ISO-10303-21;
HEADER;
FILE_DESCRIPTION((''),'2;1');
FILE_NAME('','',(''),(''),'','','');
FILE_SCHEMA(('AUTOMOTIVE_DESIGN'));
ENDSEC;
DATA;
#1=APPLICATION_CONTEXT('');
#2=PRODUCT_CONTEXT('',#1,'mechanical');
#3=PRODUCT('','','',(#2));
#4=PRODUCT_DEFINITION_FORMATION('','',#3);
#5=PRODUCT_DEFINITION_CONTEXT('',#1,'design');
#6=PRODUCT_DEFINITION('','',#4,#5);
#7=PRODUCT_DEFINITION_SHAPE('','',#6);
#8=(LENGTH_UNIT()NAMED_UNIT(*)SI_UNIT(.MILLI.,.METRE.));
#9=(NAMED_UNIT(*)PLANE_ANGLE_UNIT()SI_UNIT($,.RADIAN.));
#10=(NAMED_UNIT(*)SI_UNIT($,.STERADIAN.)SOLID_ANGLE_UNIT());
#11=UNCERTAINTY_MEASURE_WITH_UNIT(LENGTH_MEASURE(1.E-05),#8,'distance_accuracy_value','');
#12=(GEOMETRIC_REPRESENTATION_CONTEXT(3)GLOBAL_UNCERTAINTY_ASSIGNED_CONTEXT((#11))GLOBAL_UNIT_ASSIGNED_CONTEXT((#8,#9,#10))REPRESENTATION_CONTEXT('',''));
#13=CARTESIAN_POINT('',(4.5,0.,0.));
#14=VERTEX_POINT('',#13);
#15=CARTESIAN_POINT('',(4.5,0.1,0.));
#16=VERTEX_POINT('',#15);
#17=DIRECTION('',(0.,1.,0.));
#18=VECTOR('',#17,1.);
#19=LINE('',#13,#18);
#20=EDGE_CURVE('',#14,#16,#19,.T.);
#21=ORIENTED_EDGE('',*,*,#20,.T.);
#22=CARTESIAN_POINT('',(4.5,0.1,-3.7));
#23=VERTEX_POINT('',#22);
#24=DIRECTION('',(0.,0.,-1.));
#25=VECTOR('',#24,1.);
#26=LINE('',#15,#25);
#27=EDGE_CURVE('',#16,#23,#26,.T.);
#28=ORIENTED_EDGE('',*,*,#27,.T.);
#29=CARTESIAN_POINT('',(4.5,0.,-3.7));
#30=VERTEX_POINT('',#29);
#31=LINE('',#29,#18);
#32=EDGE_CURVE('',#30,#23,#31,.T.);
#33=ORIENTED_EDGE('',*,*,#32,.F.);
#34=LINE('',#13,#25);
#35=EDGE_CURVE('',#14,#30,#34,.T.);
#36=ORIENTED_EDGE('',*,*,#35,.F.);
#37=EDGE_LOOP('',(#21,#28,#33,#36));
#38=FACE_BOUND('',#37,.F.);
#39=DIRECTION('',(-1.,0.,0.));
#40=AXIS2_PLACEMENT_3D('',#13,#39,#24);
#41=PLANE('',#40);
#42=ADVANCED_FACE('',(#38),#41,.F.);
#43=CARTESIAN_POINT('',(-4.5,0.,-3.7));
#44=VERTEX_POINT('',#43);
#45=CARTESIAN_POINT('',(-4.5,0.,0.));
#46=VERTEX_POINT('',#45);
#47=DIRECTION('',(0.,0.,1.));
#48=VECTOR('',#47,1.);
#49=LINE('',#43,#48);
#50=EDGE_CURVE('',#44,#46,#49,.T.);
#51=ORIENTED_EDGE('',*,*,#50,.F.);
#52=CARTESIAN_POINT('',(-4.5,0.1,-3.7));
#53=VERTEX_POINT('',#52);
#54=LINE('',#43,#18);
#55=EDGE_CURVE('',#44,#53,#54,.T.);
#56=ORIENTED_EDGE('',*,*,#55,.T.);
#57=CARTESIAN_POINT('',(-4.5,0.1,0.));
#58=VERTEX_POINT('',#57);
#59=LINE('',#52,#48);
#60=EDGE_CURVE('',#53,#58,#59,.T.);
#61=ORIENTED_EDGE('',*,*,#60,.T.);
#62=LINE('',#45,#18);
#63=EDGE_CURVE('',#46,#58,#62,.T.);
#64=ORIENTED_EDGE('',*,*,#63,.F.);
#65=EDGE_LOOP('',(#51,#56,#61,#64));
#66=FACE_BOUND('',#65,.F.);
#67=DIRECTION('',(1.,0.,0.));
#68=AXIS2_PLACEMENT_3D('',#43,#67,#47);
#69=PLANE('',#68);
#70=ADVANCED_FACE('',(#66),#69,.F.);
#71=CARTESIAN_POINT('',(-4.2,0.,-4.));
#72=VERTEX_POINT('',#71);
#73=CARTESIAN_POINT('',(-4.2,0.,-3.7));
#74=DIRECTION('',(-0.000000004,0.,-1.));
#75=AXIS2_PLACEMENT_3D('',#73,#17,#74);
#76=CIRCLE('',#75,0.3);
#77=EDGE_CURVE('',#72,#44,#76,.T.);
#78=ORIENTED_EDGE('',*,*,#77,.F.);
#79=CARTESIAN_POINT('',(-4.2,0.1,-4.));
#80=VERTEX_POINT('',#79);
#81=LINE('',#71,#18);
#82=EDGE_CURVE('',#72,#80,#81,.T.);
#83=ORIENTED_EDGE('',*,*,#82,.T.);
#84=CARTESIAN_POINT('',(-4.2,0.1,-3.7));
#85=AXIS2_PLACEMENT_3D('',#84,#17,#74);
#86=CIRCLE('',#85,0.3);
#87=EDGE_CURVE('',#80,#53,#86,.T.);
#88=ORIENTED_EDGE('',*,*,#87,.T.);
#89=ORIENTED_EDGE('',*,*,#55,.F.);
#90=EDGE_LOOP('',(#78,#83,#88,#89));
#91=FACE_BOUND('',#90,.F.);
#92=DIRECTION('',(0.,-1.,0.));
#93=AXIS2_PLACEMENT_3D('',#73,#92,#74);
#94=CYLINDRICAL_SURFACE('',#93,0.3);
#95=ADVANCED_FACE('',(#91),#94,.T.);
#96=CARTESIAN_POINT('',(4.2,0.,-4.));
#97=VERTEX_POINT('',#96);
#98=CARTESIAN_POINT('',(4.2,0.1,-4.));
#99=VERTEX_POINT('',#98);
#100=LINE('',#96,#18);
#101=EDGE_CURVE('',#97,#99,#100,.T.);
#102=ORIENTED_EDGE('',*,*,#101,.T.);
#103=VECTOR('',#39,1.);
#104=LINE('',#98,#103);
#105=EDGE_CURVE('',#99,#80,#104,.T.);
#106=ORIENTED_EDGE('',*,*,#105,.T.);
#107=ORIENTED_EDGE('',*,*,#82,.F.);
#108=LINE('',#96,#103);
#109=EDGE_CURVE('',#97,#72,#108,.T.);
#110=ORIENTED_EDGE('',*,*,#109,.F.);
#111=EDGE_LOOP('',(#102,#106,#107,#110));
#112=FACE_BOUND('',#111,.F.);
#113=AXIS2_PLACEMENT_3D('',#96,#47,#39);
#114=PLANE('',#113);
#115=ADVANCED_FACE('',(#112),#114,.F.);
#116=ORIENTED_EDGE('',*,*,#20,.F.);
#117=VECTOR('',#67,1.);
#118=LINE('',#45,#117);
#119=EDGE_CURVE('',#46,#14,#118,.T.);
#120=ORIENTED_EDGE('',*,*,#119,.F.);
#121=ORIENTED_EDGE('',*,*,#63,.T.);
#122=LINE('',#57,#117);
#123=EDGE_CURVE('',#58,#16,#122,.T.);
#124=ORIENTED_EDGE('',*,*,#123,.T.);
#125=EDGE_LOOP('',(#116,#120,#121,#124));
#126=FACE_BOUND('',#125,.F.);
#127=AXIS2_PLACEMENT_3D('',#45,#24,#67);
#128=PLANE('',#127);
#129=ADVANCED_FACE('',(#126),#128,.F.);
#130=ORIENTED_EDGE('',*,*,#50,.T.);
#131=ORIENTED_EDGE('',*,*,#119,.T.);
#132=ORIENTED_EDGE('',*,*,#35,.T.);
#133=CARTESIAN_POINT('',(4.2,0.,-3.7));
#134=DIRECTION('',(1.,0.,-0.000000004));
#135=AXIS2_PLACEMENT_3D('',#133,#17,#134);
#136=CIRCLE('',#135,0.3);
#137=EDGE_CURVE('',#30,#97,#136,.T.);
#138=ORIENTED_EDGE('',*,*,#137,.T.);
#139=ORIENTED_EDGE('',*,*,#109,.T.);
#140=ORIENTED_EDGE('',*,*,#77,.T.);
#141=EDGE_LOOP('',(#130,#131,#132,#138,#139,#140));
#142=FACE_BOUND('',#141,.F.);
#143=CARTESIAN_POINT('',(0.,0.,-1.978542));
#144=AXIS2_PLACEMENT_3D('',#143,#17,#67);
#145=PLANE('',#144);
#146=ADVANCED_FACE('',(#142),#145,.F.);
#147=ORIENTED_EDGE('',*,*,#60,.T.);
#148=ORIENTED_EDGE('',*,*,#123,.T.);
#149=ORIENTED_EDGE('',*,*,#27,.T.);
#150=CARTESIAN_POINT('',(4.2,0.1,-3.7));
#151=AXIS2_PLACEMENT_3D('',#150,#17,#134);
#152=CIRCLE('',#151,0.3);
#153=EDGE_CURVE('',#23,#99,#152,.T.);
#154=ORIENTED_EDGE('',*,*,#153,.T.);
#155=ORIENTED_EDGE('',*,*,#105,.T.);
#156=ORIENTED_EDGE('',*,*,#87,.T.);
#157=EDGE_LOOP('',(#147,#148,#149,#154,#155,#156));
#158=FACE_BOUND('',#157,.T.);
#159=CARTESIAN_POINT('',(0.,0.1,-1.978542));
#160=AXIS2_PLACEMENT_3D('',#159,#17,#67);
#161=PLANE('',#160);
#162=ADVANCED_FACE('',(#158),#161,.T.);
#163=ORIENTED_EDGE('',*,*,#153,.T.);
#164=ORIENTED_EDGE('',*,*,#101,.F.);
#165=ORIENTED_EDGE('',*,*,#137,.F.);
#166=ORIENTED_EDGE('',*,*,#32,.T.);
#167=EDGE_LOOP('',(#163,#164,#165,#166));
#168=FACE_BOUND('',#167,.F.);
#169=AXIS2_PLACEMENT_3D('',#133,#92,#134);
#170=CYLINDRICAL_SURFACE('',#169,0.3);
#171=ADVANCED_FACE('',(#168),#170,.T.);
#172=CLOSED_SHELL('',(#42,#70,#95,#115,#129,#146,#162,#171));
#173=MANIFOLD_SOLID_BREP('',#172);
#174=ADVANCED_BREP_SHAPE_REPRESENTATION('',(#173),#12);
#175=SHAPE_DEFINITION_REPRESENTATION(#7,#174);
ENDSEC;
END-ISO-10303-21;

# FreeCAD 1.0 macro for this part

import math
import FreeCAD as App
import Part
import Sketcher
from FreeCAD import Vector
Q = App.Units.Quantity

doc = App.newDocument("Part")
body = doc.addObject("PartDesign::Body", "Body")

# Sketch on XZ plane
sketch1 = doc.addObject("Sketcher::SketchObject", "Sketch")
body.addObject(sketch1)
sketch1.AttachmentSupport = (doc.XZ_Plane, [""])
sketch1.MapMode = "FlatFace"
sketch1.addGeometry([
    Part.LineSegment(Vector(4.5, 0, 0), Vector(4.5, -3.7, 0)),  # 0
    Part.ArcOfCircle(Part.Circle(Vector(4.2, -3.7, 0), Vector(0, 0, 1), 0.3), math.radians(-90), math.radians(0)),  # 1
    Part.LineSegment(Vector(4.2, -4, 0), Vector(-4.2, -4, 0)),  # 2
    Part.ArcOfCircle(Part.Circle(Vector(-4.2, -3.7, 0), Vector(0, 0, 1), 0.3), math.radians(-180), math.radians(-90)),  # 3
    Part.LineSegment(Vector(-4.5, -3.7, 0), Vector(-4.5, 0, 0)),  # 4
    Part.LineSegment(Vector(-4.5, 0, 0), Vector(4.5, 0, 0)),  # 5
], False)
sketch1.addConstraint([
    Sketcher.Constraint("Tangent", 0, 2, 1, 2),
    Sketcher.Constraint("Tangent", 1, 1, 2, 1),
    Sketcher.Constraint("Tangent", 2, 2, 3, 2),
    Sketcher.Constraint("Tangent", 3, 1, 4, 1),
    Sketcher.Constraint("Coincident", 4, 2, 5, 1),
    Sketcher.Constraint("Coincident", 5, 2, 0, 1),
    Sketcher.Constraint("Vertical", 0),
    Sketcher.Constraint("Horizontal", 2),
    Sketcher.Constraint("Vertical", 4),
    Sketcher.Constraint("Horizontal", 5),
    Sketcher.Constraint("Equal", 1, 3),
    Sketcher.Constraint("Symmetric", 4, 2, 5, 2, -1, 1),
    Sketcher.Constraint("Radius", 1, Q("0.3 mm")),
    Sketcher.Constraint("DistanceX", 5, 1, 5, 2, Q("9 mm")),
    Sketcher.Constraint("DistanceY", 0, 2, 0, 1, Q("3.7 mm")),
])
pad1 = doc.addObject("PartDesign::Pad", "Pad")
body.addObject(pad1)
pad1.Profile = sketch1
pad1.Length = 0.1
pad1.Reversed = True

doc.recompute()
